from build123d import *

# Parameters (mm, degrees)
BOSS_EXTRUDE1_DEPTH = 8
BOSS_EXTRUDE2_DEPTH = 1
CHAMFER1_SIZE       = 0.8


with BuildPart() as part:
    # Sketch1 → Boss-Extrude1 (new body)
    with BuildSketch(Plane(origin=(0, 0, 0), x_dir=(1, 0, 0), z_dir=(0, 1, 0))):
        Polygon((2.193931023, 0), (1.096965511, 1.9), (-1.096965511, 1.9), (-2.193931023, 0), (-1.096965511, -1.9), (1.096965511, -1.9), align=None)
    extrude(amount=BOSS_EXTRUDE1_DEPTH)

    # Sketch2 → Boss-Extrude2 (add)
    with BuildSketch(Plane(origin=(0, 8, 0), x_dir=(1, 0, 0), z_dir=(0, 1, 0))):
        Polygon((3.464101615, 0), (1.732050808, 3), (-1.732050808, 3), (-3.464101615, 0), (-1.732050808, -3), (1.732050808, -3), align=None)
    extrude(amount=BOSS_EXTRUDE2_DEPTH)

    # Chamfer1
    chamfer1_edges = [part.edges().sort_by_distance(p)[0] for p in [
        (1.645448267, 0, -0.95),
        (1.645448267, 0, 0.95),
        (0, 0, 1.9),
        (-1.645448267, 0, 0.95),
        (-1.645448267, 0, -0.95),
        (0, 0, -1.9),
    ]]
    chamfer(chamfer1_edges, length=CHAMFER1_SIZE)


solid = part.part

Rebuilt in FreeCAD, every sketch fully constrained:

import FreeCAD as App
import Part
import Sketcher

V = App.Vector
Q = App.Units.Quantity


def edges_at(feature, points):
    """Names of the edges that pass closest to the given points."""
    edges = feature.Shape.Edges
    near = lambda p: min(range(len(edges)), key=lambda i: edges[i].distToShape(Part.Vertex(*p))[0])
    return sorted({f"Edge{near(p) + 1}" for p in points})

doc = App.newDocument("Part")
body = doc.addObject("PartDesign::Body", "Body")

sketch1 = body.newObject("Sketcher::SketchObject", "Sketch")
sketch1.AttachmentSupport = (doc.getObject("XZ_Plane"), [""])
sketch1.MapMode = "FlatFace"
sketch1.addGeometry([
    Part.LineSegment(V(2.2, 0, 0), V(1.1, -1.9, 0)),
    Part.LineSegment(V(1.1, -1.9, 0), V(-1.1, -1.9, 0)),
    Part.LineSegment(V(-1.1, -1.9, 0), V(-2.2, 0, 0)),
    Part.LineSegment(V(-2.2, 0, 0), V(-1.1, 1.9, 0)),
    Part.LineSegment(V(-1.1, 1.9, 0), V(1.1, 1.9, 0)),
    Part.LineSegment(V(1.1, 1.9, 0), V(2.2, 0, 0)),
], False)
sketch1.addConstraint([
    Sketcher.Constraint("Coincident", 0, 2, 1, 1),
    Sketcher.Constraint("Coincident", 1, 2, 2, 1),
    Sketcher.Constraint("Coincident", 2, 2, 3, 1),
    Sketcher.Constraint("Coincident", 3, 2, 4, 1),
    Sketcher.Constraint("Coincident", 4, 2, 5, 1),
    Sketcher.Constraint("Coincident", 5, 2, 0, 1),
    Sketcher.Constraint("Horizontal", 1),
    Sketcher.Constraint("Horizontal", 4),
    Sketcher.Constraint("Symmetric", 0, 2, 3, 2, -1, 1),
    Sketcher.Constraint("Symmetric", 2, 2, 5, 2, -1, 1),
    Sketcher.Constraint("PointOnObject", 2, 2, -1),
    Sketcher.Constraint("Parallel", 2, 5),
    Sketcher.Constraint("Vertical", 1, 2, 3, 2),
    Sketcher.Constraint("Angle", 0, Q("-120 deg")),
    Sketcher.Constraint("DistanceY", 0, 2, -1, 1, Q("1.9 mm")),
    Sketcher.Constraint("DistanceX", 1, 2, 1, 1, Q("2.193931 mm")),
])
pad1 = body.newObject("PartDesign::Pad", "Pad")
pad1.Profile = sketch1
pad1.Length = 8
pad1.Reversed = True

sketch2 = body.newObject("Sketcher::SketchObject", "Sketch001")
sketch2.AttachmentSupport = (doc.getObject("XZ_Plane"), [""])
sketch2.MapMode = "FlatFace"
sketch2.AttachmentOffset = App.Placement(V(0, 0, -8), App.Rotation())
sketch2.addGeometry([
    Part.LineSegment(V(3.5, 0, 0), V(1.7, -3, 0)),
    Part.LineSegment(V(1.7, -3, 0), V(-1.7, -3, 0)),
    Part.LineSegment(V(-1.7, -3, 0), V(-3.5, 0, 0)),
    Part.LineSegment(V(-3.5, 0, 0), V(-1.7, 3, 0)),
    Part.LineSegment(V(-1.7, 3, 0), V(1.7, 3, 0)),
    Part.LineSegment(V(1.7, 3, 0), V(3.5, 0, 0)),
], False)
sketch2.addConstraint([
    Sketcher.Constraint("Coincident", 0, 2, 1, 1),
    Sketcher.Constraint("Coincident", 1, 2, 2, 1),
    Sketcher.Constraint("Coincident", 2, 2, 3, 1),
    Sketcher.Constraint("Coincident", 3, 2, 4, 1),
    Sketcher.Constraint("Coincident", 4, 2, 5, 1),
    Sketcher.Constraint("Coincident", 5, 2, 0, 1),
    Sketcher.Constraint("Horizontal", 1),
    Sketcher.Constraint("Horizontal", 4),
    Sketcher.Constraint("Symmetric", 0, 2, 3, 2, -1, 1),
    Sketcher.Constraint("Symmetric", 2, 2, 5, 2, -1, 1),
    Sketcher.Constraint("PointOnObject", 2, 2, -1),
    Sketcher.Constraint("Parallel", 2, 5),
    Sketcher.Constraint("Vertical", 1, 2, 3, 2),
    Sketcher.Constraint("Angle", 0, Q("-120 deg")),
    Sketcher.Constraint("DistanceY", 0, 2, -1, 1, Q("3 mm")),
    Sketcher.Constraint("DistanceX", 1, 2, 1, 1, Q("3.464102 mm")),
])
pad2 = body.newObject("PartDesign::Pad", "Pad001")
pad2.Profile = sketch2
pad2.Length = 1
pad2.Reversed = True
doc.recompute()

chamfer = body.newObject("PartDesign::Chamfer", "Chamfer")
chamfer.Base = (pad2, edges_at(pad2, [
    (1.645, 0, -0.95),
    (1.645, 0, 0.95),
    (0, 0, 1.9),
    (-1.645, 0, 0.95),
    (-1.645, 0, -0.95),
    (0, 0, -1.9),
]))
chamfer.Size = 0.8

doc.recompute()
